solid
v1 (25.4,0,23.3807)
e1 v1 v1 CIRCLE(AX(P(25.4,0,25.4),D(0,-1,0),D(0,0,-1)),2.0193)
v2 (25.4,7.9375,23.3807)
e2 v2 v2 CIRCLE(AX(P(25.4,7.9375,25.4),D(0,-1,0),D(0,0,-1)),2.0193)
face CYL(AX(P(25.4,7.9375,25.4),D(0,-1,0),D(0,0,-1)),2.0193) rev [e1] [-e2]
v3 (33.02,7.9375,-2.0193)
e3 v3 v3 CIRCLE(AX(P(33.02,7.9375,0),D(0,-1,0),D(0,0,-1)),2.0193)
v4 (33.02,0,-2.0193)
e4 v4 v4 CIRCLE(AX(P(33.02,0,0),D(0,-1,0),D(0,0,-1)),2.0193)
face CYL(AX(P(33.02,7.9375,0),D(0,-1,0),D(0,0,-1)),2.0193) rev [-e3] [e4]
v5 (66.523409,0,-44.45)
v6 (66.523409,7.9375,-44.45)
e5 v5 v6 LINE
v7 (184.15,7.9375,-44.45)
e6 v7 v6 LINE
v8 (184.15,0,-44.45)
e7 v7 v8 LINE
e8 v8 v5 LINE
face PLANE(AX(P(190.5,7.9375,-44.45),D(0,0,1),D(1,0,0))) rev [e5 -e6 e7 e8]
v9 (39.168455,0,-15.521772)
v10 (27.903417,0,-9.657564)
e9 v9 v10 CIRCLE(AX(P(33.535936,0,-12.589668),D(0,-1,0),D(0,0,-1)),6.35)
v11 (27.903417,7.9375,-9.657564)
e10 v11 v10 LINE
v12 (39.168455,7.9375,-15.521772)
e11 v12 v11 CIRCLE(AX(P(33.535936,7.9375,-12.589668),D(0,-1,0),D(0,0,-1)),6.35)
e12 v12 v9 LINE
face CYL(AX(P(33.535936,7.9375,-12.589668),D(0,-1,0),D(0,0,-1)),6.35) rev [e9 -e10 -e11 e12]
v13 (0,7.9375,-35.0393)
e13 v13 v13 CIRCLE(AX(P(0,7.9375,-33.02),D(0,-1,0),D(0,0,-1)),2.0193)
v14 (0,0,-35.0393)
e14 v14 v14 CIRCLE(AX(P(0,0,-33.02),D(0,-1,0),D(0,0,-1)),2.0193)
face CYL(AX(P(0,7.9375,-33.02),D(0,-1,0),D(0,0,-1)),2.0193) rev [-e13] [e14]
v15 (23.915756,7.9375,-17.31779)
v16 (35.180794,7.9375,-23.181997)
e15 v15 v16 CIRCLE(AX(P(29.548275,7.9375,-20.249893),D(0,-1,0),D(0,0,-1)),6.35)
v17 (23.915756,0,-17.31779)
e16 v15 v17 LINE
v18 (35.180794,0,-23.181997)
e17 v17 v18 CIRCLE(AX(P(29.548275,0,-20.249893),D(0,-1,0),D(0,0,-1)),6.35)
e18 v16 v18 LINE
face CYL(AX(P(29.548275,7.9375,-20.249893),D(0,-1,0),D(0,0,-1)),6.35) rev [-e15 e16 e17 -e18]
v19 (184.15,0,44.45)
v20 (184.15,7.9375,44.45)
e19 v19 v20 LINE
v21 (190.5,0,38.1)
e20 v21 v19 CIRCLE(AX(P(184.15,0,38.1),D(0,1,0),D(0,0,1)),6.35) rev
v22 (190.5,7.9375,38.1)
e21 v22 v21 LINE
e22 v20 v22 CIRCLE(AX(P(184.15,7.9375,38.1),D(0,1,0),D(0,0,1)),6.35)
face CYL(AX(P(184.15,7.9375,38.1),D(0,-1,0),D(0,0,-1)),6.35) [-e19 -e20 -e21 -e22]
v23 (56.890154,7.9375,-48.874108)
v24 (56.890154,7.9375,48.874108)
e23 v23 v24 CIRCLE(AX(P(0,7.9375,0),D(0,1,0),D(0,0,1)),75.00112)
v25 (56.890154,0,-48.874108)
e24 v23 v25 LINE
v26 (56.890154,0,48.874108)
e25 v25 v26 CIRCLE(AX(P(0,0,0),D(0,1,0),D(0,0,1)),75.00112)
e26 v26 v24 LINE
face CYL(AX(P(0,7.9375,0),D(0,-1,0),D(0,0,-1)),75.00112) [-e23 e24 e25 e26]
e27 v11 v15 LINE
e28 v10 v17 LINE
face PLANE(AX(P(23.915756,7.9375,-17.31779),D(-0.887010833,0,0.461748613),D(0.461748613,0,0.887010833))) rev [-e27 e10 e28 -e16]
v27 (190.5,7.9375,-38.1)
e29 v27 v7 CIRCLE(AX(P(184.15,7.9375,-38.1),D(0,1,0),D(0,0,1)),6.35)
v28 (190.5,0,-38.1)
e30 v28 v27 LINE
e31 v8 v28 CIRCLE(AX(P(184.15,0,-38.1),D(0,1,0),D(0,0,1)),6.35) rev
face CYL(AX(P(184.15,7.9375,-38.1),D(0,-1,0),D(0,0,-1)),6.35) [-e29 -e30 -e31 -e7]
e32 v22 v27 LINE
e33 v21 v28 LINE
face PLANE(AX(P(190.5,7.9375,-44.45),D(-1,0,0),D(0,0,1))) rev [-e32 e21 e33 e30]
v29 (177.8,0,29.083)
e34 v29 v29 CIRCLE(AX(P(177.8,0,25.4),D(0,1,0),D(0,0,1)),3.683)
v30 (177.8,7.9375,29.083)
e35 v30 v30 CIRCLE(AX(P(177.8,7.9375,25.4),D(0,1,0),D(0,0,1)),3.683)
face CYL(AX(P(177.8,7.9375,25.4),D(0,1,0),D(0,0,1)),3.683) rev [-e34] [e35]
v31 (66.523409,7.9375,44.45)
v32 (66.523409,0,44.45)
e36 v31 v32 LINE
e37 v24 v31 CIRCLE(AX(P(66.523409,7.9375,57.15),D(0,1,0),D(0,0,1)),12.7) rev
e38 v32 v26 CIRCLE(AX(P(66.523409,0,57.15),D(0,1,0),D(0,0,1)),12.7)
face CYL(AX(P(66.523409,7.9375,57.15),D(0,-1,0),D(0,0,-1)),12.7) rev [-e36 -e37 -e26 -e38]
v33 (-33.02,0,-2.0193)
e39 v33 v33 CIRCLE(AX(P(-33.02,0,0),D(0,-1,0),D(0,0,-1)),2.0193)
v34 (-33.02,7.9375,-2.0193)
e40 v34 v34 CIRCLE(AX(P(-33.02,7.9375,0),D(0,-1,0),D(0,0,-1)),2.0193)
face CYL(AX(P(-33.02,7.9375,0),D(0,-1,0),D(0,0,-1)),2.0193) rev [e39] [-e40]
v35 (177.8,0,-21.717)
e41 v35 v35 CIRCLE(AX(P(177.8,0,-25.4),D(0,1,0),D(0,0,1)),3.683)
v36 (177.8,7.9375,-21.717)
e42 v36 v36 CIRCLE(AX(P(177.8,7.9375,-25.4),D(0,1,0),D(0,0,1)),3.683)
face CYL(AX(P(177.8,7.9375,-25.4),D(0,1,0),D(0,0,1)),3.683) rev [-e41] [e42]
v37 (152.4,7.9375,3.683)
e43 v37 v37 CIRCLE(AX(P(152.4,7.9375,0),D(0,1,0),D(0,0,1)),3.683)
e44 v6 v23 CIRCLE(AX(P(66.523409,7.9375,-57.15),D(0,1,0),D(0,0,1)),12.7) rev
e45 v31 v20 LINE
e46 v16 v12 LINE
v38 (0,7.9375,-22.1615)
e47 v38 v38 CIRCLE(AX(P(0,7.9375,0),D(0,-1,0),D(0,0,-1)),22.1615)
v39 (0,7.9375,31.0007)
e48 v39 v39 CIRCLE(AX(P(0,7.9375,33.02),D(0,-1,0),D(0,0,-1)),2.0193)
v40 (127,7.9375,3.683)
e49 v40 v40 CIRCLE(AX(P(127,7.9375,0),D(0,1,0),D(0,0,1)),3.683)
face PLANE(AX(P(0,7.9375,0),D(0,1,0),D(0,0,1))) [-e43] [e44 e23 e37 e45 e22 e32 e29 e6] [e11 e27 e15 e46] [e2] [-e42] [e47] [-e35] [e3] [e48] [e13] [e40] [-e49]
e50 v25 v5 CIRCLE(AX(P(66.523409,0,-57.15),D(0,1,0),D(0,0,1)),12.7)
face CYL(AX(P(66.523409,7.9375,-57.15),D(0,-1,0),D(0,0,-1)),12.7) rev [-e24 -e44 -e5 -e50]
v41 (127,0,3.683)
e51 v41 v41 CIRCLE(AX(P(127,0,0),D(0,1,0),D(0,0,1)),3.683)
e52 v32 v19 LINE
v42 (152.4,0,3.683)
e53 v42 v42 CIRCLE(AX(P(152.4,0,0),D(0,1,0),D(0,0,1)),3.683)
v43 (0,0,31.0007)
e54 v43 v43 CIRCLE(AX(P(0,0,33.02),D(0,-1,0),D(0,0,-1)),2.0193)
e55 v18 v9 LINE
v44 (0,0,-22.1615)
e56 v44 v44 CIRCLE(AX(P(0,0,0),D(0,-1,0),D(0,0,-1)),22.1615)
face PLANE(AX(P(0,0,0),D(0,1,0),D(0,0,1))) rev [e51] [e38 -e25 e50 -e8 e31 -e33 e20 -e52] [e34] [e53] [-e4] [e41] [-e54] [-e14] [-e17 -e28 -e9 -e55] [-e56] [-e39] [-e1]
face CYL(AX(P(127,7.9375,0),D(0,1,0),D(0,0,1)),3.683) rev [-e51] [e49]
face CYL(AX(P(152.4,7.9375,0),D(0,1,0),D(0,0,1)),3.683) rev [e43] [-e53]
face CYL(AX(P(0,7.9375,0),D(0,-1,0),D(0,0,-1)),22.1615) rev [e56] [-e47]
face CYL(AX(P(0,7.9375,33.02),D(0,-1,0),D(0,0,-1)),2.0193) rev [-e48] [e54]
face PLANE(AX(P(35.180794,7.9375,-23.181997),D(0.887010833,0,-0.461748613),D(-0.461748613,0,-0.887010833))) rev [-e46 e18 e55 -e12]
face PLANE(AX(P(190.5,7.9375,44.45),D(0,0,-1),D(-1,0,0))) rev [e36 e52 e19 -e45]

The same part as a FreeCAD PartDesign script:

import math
import FreeCAD as App
import Part
import Sketcher
Q = App.Units.Quantity


def edges_at(feature, points):
    """Names of the edges that pass closest to the given points."""
    edges = feature.Shape.Edges
    near = lambda p: min(range(len(edges)), key=lambda i: edges[i].distToShape(Part.Vertex(*p))[0])
    return sorted({f"Edge{near(p) + 1}" for p in points})

doc = App.newDocument("Part")
body = doc.addObject("PartDesign::Body", "Body")

# Sketch on XZ plane
sketch1 = body.newObject("Sketcher::SketchObject", "Sketch")
sketch1.AttachmentSupport = (doc.getObject("XZ_Plane"), [""])
sketch1.MapMode = "FlatFace"
sketch1.addGeometry(Part.LineSegment(App.Vector(60, 44, 0), App.Vector(190, 44, 0)), False)
sketch1.addGeometry(Part.LineSegment(App.Vector(190, 44, 0), App.Vector(190, -44, 0)), False)
sketch1.addGeometry(Part.LineSegment(App.Vector(190, -44, 0), App.Vector(60, -44, 0)), False)
sketch1.addGeometry(Part.ArcOfCircle(Part.Circle(App.Vector(0, 0, 0), App.Vector(0, 0, 1), 75), math.radians(36), math.radians(324)), False)
sketch1.addConstraint(Sketcher.Constraint("Coincident", 0, 2, 1, 1))
sketch1.addConstraint(Sketcher.Constraint("Coincident", 1, 2, 2, 1))
sketch1.addConstraint(Sketcher.Constraint("Coincident", 2, 2, 3, 2))
sketch1.addConstraint(Sketcher.Constraint("Coincident", 3, 1, 0, 1))
sketch1.addConstraint(Sketcher.Constraint("Horizontal", 0))
sketch1.addConstraint(Sketcher.Constraint("Vertical", 1))
sketch1.addConstraint(Sketcher.Constraint("Horizontal", 2))
sketch1.addConstraint(Sketcher.Constraint("Coincident", 3, 3, -1, 1))
sketch1.addConstraint(Sketcher.Constraint("Vertical", 2, 2, 3, 1))
sketch1.addConstraint(Sketcher.Constraint("DistanceY", 1, 2, 1, 1, Q("3.5 in")))
sketch1.addConstraint(Sketcher.Constraint("DistanceX", -1, 1, 0, 2, Q("7.5 in")))
sketch1.addConstraint(Sketcher.Constraint("Radius", 3, Q("2.9528 in")))
pad1 = body.newObject("PartDesign::Pad", "Pad")
pad1.Profile = sketch1
pad1.Length = Q("0.3125 in")
pad1.Reversed = True

# Sketch on XZ plane
sketch2 = body.newObject("Sketcher::SketchObject", "Sketch001")
sketch2.AttachmentSupport = (doc.getObject("XZ_Plane"), [""])
sketch2.MapMode = "FlatFace"
sketch2.addGeometry(Part.Circle(App.Vector(0, 0, 0), App.Vector(0, 0, 1), 22.2), False)
sketch2.addGeometry(Part.Circle(App.Vector(0, 33, 0), App.Vector(0, 0, 1), 2), False)
sketch2.addGeometry(Part.Circle(App.Vector(33, 0, 0), App.Vector(0, 0, 1), 2), False)
sketch2.addGeometry(Part.Circle(App.Vector(0, -33, 0), App.Vector(0, 0, 1), 2), False)
sketch2.addGeometry(Part.Circle(App.Vector(-33, 0, 0), App.Vector(0, 0, 1), 2), False)
sketch2.addGeometry(Part.Circle(App.Vector(25.4, 25.4, 0), App.Vector(0, 0, 1), 2), False)
sketch2.addGeometry(Part.LineSegment(App.Vector(27.9, -9.7, 0), App.Vector(23.9, -17.3, 0)), False)
sketch2.addGeometry(Part.ArcOfCircle(Part.Circle(App.Vector(29.5, -20.2, 0), App.Vector(0, 0, 1), 6.3), math.radians(153), math.radians(333)), False)
sketch2.addGeometry(Part.LineSegment(App.Vector(35.2, -23.2, 0), App.Vector(39.2, -15.5, 0)), False)
sketch2.addGeometry(Part.ArcOfCircle(Part.Circle(App.Vector(33.5, -12.6, 0), App.Vector(0, 0, 1), 6.3), math.radians(-28), math.radians(153)), False)
sketch2.addConstraint(Sketcher.Constraint("Tangent", 6, 2, 7, 1))
sketch2.addConstraint(Sketcher.Constraint("Tangent", 7, 2, 8, 1))
sketch2.addConstraint(Sketcher.Constraint("Tangent", 8, 2, 9, 1))
sketch2.addConstraint(Sketcher.Constraint("Tangent", 9, 2, 6, 1))
sketch2.addConstraint(Sketcher.Constraint("Coincident", 0, 3, -1, 1))
sketch2.addConstraint(Sketcher.Constraint("Equal", 1, 2))
sketch2.addConstraint(Sketcher.Constraint("Equal", 2, 3))
sketch2.addConstraint(Sketcher.Constraint("Equal", 3, 4))
sketch2.addConstraint(Sketcher.Constraint("Equal", 4, 5))
sketch2.addConstraint(Sketcher.Constraint("Equal", 7, 9))
sketch2.addConstraint(Sketcher.Constraint("Symmetric", 1, 3, 3, 3, -1, 1))
sketch2.addConstraint(Sketcher.Constraint("Symmetric", 2, 3, 4, 3, -1, 1))
sketch2.addConstraint(Sketcher.Constraint("PointOnObject", 1, 3, -2))
sketch2.addConstraint(Sketcher.Constraint("PointOnObject", 2, 3, -1))
sketch2.addConstraint(Sketcher.Constraint("Radius", 7, Q("0.25 in")))
sketch2.addConstraint(Sketcher.Constraint("Diameter", 0, Q("1.745 in")))
sketch2.addConstraint(Sketcher.Constraint("Diameter", 1, Q("0.159 in")))
sketch2.addConstraint(Sketcher.Constraint("DistanceX", -1, 1, 5, 3, Q("1 in")))
sketch2.addConstraint(Sketcher.Constraint("DistanceY", -1, 1, 5, 3, Q("1 in")))
sketch2.addConstraint(Sketcher.Constraint("DistanceY", -1, 1, 1, 3, Q("1.3 in")))
sketch2.addConstraint(Sketcher.Constraint("DistanceX", -1, 1, 2, 3, Q("1.3 in")))
sketch2.addConstraint(Sketcher.Constraint("Angle", 6, Q("-117.5 deg")))
sketch2.addConstraint(Sketcher.Constraint("Distance", 6, Q("0.34 in")))
sketch2.addConstraint(Sketcher.Constraint("DistanceY", 6, 2, -1, 1, Q("17.31779 mm")))
sketch2.addConstraint(Sketcher.Constraint("DistanceX", -1, 1, 7, 3, Q("29.548275 mm")))
pocket1 = body.newObject("PartDesign::Pocket", "Pocket")
pocket1.Profile = sketch2
pocket1.Type = "ThroughAll"

# Sketch on XZ plane
sketch3 = body.newObject("Sketcher::SketchObject", "Sketch002")
sketch3.AttachmentSupport = (doc.getObject("XZ_Plane"), [""])
sketch3.MapMode = "FlatFace"
sketch3.AttachmentOffset = App.Placement(App.Vector(0, 0, -0.3125 * 25.4), App.Rotation())
sketch3.addGeometry(Part.Circle(App.Vector(177.8, -25.4, 0), App.Vector(0, 0, 1), 3.7), False)
sketch3.addGeometry(Part.Circle(App.Vector(177.8, 25.4, 0), App.Vector(0, 0, 1), 3.7), False)
sketch3.addGeometry(Part.Circle(App.Vector(152.4, 0, 0), App.Vector(0, 0, 1), 3.7), False)
sketch3.addGeometry(Part.Circle(App.Vector(127, 0, 0), App.Vector(0, 0, 1), 3.7), False)
sketch3.addConstraint(Sketcher.Constraint("Equal", 0, 1))
sketch3.addConstraint(Sketcher.Constraint("Equal", 1, 2))
sketch3.addConstraint(Sketcher.Constraint("Equal", 2, 3))
sketch3.addConstraint(Sketcher.Constraint("Symmetric", 0, 3, 1, 3, -1))
sketch3.addConstraint(Sketcher.Constraint("PointOnObject", 2, 3, -1))
sketch3.addConstraint(Sketcher.Constraint("PointOnObject", 3, 3, -1))
sketch3.addConstraint(Sketcher.Constraint("Diameter", 0, Q("0.29 in")))
sketch3.addConstraint(Sketcher.Constraint("DistanceX", -1, 1, 0, 3, Q("7 in")))
sketch3.addConstraint(Sketcher.Constraint("DistanceY", 0, 3, -1, 1, Q("1 in")))
sketch3.addConstraint(Sketcher.Constraint("DistanceX", -1, 1, 2, 3, Q("6 in")))
sketch3.addConstraint(Sketcher.Constraint("DistanceX", -1, 1, 3, 3, Q("5 in")))
doc.recompute()
hole = body.newObject("PartDesign::Hole", "Hole")
hole.Profile = sketch3
hole.ThreadType = "None"
hole.Diameter = Q("0.29 in")
hole.DepthType = "ThroughAll"
hole.Reversed = True
doc.recompute()

fillet = body.newObject("PartDesign::Fillet", "Fillet")
fillet.Base = (hole, edges_at(hole, [(190.5, 3.969, -44.45), (190.5, 3.969, 44.45)]))
fillet.Radius = Q("0.25 in")
doc.recompute()

fillet2 = body.newObject("PartDesign::Fillet", "Fillet001")
fillet2.Base = (fillet, edges_at(fillet, [(60.41, 3.969, -44.45), (60.41, 3.969, 44.45)]))
fillet2.Radius = Q("0.5 in")

doc.recompute()
